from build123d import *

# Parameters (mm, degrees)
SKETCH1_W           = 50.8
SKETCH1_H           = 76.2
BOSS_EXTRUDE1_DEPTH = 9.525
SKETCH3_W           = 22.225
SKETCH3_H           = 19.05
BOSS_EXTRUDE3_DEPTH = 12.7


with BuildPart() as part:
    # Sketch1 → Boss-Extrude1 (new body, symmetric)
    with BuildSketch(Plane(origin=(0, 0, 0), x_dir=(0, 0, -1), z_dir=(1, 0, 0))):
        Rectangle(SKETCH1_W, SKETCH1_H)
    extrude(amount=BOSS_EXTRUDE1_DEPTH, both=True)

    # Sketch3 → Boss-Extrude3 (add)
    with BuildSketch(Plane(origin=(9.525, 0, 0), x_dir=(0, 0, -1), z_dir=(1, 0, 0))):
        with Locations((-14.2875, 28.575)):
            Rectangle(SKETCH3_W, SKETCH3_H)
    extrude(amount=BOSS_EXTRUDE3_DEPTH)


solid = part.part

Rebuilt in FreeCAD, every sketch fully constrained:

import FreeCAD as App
import Part
import Sketcher
from FreeCAD import Vector
Q = App.Units.Quantity

doc = App.newDocument("Part")
body = doc.addObject("PartDesign::Body", "Body")

sketch1 = body.newObject("Sketcher::SketchObject", "Sketch")
sketch1.AttachmentSupport = (doc.getObject("YZ_Plane"), [""])
sketch1.MapMode = "FlatFace"
sketch1.addGeometry([
    Part.LineSegment(Vector(38.1, 25.4, 0), Vector(-38.1, 25.4, 0)),
    Part.LineSegment(Vector(-38.1, 25.4, 0), Vector(-38.1, -25.4, 0)),
    Part.LineSegment(Vector(-38.1, -25.4, 0), Vector(38.1, -25.4, 0)),
    Part.LineSegment(Vector(38.1, -25.4, 0), Vector(38.1, 25.4, 0)),
], False)
sketch1.addConstraint([
    Sketcher.Constraint("Coincident", 0, 2, 1, 1),
    Sketcher.Constraint("Coincident", 1, 2, 2, 1),
    Sketcher.Constraint("Coincident", 2, 2, 3, 1),
    Sketcher.Constraint("Coincident", 3, 2, 0, 1),
    Sketcher.Constraint("Horizontal", 0),
    Sketcher.Constraint("Vertical", 1),
    Sketcher.Constraint("Horizontal", 2),
    Sketcher.Constraint("Vertical", 3),
    Sketcher.Constraint("Symmetric", 0, 2, 2, 2, -1, 1),
    Sketcher.Constraint("DistanceX", 0, 2, 0, 1, Q("3 in")),
    Sketcher.Constraint("DistanceY", 1, 2, 1, 1, Q("2 in")),
])
pad1 = body.newObject("PartDesign::Pad", "Pad")
pad1.Profile = sketch1
pad1.Length = Q("0.75 in")
pad1.Midplane = True

sketch2 = body.newObject("Sketcher::SketchObject", "Sketch001")
sketch2.AttachmentSupport = (doc.getObject("YZ_Plane"), [""])
sketch2.MapMode = "FlatFace"
sketch2.AttachmentOffset = App.Placement(Vector(0, 0, 0.375 * 25.4), App.Rotation())
sketch2.addGeometry([
    Part.LineSegment(Vector(38.1, 25.4, 0), Vector(19.05, 25.4, 0)),
    Part.LineSegment(Vector(19.05, 25.4, 0), Vector(19.05, 3.175, 0)),
    Part.LineSegment(Vector(19.05, 3.175, 0), Vector(38.1, 3.175, 0)),
    Part.LineSegment(Vector(38.1, 3.175, 0), Vector(38.1, 25.4, 0)),
], False)
sketch2.addConstraint([
    Sketcher.Constraint("Coincident", 0, 2, 1, 1),
    Sketcher.Constraint("Coincident", 1, 2, 2, 1),
    Sketcher.Constraint("Coincident", 2, 2, 3, 1),
    Sketcher.Constraint("Coincident", 3, 2, 0, 1),
    Sketcher.Constraint("Horizontal", 0),
    Sketcher.Constraint("Vertical", 1),
    Sketcher.Constraint("Horizontal", 2),
    Sketcher.Constraint("Vertical", 3),
    Sketcher.Constraint("DistanceY", -1, 1, 0, 2, Q("1 in")),
    Sketcher.Constraint("DistanceX", 0, 2, 0, 1, Q("0.75 in")),
    Sketcher.Constraint("DistanceX", -1, 1, 2, 2, Q("1.5 in")),
    Sketcher.Constraint("DistanceY", 1, 2, 1, 1, Q("0.875 in")),
])
pad2 = body.newObject("PartDesign::Pad", "Pad001")
pad2.Profile = sketch2
pad2.Length = Q("0.5 in")

doc.recompute()
